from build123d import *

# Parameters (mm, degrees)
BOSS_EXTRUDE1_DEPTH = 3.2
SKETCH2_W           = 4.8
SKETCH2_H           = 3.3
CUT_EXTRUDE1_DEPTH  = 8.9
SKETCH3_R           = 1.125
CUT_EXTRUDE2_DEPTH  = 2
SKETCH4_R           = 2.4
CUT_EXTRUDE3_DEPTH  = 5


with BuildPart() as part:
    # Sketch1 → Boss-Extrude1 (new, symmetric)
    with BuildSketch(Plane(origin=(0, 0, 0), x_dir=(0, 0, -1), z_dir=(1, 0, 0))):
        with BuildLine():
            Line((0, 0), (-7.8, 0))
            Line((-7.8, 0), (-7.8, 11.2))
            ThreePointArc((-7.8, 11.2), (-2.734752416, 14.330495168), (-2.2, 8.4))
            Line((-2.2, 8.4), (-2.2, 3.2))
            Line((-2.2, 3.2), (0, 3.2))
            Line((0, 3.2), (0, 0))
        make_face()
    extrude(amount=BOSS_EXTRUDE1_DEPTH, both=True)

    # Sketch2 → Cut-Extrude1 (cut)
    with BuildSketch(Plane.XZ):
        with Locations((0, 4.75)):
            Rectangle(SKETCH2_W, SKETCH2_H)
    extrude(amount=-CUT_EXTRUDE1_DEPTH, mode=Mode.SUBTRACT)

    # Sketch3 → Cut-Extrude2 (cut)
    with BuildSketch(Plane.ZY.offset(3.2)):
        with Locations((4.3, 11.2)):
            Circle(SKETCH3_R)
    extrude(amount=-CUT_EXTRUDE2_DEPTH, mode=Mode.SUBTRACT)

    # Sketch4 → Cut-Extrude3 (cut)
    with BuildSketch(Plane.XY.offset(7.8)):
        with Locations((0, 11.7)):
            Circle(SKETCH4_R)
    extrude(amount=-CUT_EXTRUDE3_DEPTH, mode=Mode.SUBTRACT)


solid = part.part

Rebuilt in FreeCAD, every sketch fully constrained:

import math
import FreeCAD as App
import Part
import Sketcher
from FreeCAD import Vector
Q = App.Units.Quantity


def add_polygon(sketch, points):
    """Adds a closed chain of lines whose ends are joined by coincident constraints."""
    first, n = sketch.GeometryCount, len(points)
    for a, b in zip(points, points[1:] + points[:1]):
        sketch.addGeometry(Part.LineSegment(App.Vector(*a, 0), App.Vector(*b, 0)), False)
    for i in range(n):
        sketch.addConstraint(Sketcher.Constraint("Coincident", first + i, 2, first + (i + 1) % n, 1))

doc = App.newDocument("Part")
body = doc.addObject("PartDesign::Body", "Body")

sketch1 = body.newObject("Sketcher::SketchObject", "Sketch")
sketch1.AttachmentSupport = (doc.getObject("YZ_Plane"), [""])
sketch1.MapMode = "FlatFace"
sketch1.addGeometry(Part.LineSegment(Vector(0, 7.8, 0), Vector(0, 0, 0)), False)
sketch1.addGeometry(Part.LineSegment(Vector(0, 0, 0), Vector(3.2, 0, 0)), False)
sketch1.addGeometry(Part.LineSegment(Vector(3.2, 0, 0), Vector(3.2, 2.2, 0)), False)
sketch1.addGeometry(Part.LineSegment(Vector(3.2, 2.2, 0), Vector(8.4, 2.2, 0)), False)
sketch1.addGeometry(Part.ArcOfCircle(Part.Circle(Vector(11.2, 4.3, 0), Vector(0, 0, 1), 3.5), math.radians(-143.130102), math.radians(90)), False)
sketch1.addGeometry(Part.LineSegment(Vector(11.2, 7.8, 0), Vector(0, 7.8, 0)), False)
sketch1.addConstraint(Sketcher.Constraint("Coincident", 0, 2, 1, 1))
sketch1.addConstraint(Sketcher.Constraint("Coincident", 1, 2, 2, 1))
sketch1.addConstraint(Sketcher.Constraint("Coincident", 2, 2, 3, 1))
sketch1.addConstraint(Sketcher.Constraint("Coincident", 3, 2, 4, 1))
sketch1.addConstraint(Sketcher.Constraint("Tangent", 4, 2, 5, 1))
sketch1.addConstraint(Sketcher.Constraint("Coincident", 5, 2, 0, 1))
sketch1.addConstraint(Sketcher.Constraint("Vertical", 0))
sketch1.addConstraint(Sketcher.Constraint("Horizontal", 1))
sketch1.addConstraint(Sketcher.Constraint("Vertical", 2))
sketch1.addConstraint(Sketcher.Constraint("Horizontal", 3))
sketch1.addConstraint(Sketcher.Constraint("Horizontal", 5))
sketch1.addConstraint(Sketcher.Constraint("Coincident", 0, 2, -1, 1))
sketch1.addConstraint(Sketcher.Constraint("Radius", 4, Q("3.5 mm")))
sketch1.addConstraint(Sketcher.Constraint("DistanceX", 1, 1, 1, 2, Q("3.2 mm")))
sketch1.addConstraint(Sketcher.Constraint("DistanceX", 3, 1, 3, 2, Q("5.2 mm")))
sketch1.addConstraint(Sketcher.Constraint("DistanceX", 5, 2, 5, 1, Q("11.2 mm")))
sketch1.addConstraint(Sketcher.Constraint("DistanceY", 0, 2, 0, 1, Q("7.8 mm")))
pad1 = body.newObject("PartDesign::Pad", "Pad")
pad1.Profile = sketch1
pad1.Length = 6.4
pad1.Midplane = True

sketch2 = body.newObject("Sketcher::SketchObject", "Sketch001")
sketch2.AttachmentSupport = (doc.getObject("XZ_Plane"), [""])
sketch2.MapMode = "FlatFace"
add_polygon(sketch2, [(-2.4, 6.4), (-2.4, 3.1), (2.4, 3.1), (2.4, 6.4)])
sketch2.addConstraint(Sketcher.Constraint("Vertical", 0))
sketch2.addConstraint(Sketcher.Constraint("Horizontal", 1))
sketch2.addConstraint(Sketcher.Constraint("Vertical", 2))
sketch2.addConstraint(Sketcher.Constraint("Horizontal", 3))
sketch2.addConstraint(Sketcher.Constraint("DistanceX", 1, 1, 1, 2, Q("4.8 mm")))
sketch2.addConstraint(Sketcher.Constraint("DistanceY", 0, 2, 0, 1, Q("3.3 mm")))
sketch2.addConstraint(Sketcher.Constraint("DistanceX", 0, 2, -1, 1, Q("2.4 mm")))
sketch2.addConstraint(Sketcher.Constraint("DistanceY", -1, 1, 0, 2, Q("3.1 mm")))
pocket1 = body.newObject("PartDesign::Pocket", "Pocket")
pocket1.Profile = sketch2
pocket1.Length = 8.9

sketch3 = body.newObject("Sketcher::SketchObject", "Sketch002")
sketch3.AttachmentSupport = (doc.getObject("YZ_Plane"), [""])
sketch3.MapMode = "FlatFace"
sketch3.AttachmentOffset = App.Placement(Vector(0, 0, -3.2), App.Rotation())
sketch3.addGeometry(Part.Circle(Vector(11.2, 4.3, 0), Vector(0, 0, 1), 1.125), False)
sketch3.addConstraint(Sketcher.Constraint("Diameter", 0, Q("2.25 mm")))
sketch3.addConstraint(Sketcher.Constraint("DistanceX", -1, 1, 0, 3, Q("11.2 mm")))
sketch3.addConstraint(Sketcher.Constraint("DistanceY", -1, 1, 0, 3, Q("4.3 mm")))
pocket2 = body.newObject("PartDesign::Pocket", "Pocket001")
pocket2.Profile = sketch3
pocket2.Length = 2
pocket2.Reversed = True

sketch4 = body.newObject("Sketcher::SketchObject", "Sketch003")
sketch4.AttachmentSupport = (doc.getObject("XY_Plane"), [""])
sketch4.MapMode = "FlatFace"
sketch4.AttachmentOffset = App.Placement(Vector(0, 0, 7.8), App.Rotation())
sketch4.addGeometry(Part.Circle(Vector(0, 11.7, 0), Vector(0, 0, 1), 2.4), False)
sketch4.addConstraint(Sketcher.Constraint("PointOnObject", 0, 3, -2))
sketch4.addConstraint(Sketcher.Constraint("Diameter", 0, Q("4.8 mm")))
sketch4.addConstraint(Sketcher.Constraint("DistanceY", -1, 1, 0, 3, Q("11.7 mm")))
pocket3 = body.newObject("PartDesign::Pocket", "Pocket002")
pocket3.Profile = sketch4
pocket3.Length = 5

doc.recompute()
